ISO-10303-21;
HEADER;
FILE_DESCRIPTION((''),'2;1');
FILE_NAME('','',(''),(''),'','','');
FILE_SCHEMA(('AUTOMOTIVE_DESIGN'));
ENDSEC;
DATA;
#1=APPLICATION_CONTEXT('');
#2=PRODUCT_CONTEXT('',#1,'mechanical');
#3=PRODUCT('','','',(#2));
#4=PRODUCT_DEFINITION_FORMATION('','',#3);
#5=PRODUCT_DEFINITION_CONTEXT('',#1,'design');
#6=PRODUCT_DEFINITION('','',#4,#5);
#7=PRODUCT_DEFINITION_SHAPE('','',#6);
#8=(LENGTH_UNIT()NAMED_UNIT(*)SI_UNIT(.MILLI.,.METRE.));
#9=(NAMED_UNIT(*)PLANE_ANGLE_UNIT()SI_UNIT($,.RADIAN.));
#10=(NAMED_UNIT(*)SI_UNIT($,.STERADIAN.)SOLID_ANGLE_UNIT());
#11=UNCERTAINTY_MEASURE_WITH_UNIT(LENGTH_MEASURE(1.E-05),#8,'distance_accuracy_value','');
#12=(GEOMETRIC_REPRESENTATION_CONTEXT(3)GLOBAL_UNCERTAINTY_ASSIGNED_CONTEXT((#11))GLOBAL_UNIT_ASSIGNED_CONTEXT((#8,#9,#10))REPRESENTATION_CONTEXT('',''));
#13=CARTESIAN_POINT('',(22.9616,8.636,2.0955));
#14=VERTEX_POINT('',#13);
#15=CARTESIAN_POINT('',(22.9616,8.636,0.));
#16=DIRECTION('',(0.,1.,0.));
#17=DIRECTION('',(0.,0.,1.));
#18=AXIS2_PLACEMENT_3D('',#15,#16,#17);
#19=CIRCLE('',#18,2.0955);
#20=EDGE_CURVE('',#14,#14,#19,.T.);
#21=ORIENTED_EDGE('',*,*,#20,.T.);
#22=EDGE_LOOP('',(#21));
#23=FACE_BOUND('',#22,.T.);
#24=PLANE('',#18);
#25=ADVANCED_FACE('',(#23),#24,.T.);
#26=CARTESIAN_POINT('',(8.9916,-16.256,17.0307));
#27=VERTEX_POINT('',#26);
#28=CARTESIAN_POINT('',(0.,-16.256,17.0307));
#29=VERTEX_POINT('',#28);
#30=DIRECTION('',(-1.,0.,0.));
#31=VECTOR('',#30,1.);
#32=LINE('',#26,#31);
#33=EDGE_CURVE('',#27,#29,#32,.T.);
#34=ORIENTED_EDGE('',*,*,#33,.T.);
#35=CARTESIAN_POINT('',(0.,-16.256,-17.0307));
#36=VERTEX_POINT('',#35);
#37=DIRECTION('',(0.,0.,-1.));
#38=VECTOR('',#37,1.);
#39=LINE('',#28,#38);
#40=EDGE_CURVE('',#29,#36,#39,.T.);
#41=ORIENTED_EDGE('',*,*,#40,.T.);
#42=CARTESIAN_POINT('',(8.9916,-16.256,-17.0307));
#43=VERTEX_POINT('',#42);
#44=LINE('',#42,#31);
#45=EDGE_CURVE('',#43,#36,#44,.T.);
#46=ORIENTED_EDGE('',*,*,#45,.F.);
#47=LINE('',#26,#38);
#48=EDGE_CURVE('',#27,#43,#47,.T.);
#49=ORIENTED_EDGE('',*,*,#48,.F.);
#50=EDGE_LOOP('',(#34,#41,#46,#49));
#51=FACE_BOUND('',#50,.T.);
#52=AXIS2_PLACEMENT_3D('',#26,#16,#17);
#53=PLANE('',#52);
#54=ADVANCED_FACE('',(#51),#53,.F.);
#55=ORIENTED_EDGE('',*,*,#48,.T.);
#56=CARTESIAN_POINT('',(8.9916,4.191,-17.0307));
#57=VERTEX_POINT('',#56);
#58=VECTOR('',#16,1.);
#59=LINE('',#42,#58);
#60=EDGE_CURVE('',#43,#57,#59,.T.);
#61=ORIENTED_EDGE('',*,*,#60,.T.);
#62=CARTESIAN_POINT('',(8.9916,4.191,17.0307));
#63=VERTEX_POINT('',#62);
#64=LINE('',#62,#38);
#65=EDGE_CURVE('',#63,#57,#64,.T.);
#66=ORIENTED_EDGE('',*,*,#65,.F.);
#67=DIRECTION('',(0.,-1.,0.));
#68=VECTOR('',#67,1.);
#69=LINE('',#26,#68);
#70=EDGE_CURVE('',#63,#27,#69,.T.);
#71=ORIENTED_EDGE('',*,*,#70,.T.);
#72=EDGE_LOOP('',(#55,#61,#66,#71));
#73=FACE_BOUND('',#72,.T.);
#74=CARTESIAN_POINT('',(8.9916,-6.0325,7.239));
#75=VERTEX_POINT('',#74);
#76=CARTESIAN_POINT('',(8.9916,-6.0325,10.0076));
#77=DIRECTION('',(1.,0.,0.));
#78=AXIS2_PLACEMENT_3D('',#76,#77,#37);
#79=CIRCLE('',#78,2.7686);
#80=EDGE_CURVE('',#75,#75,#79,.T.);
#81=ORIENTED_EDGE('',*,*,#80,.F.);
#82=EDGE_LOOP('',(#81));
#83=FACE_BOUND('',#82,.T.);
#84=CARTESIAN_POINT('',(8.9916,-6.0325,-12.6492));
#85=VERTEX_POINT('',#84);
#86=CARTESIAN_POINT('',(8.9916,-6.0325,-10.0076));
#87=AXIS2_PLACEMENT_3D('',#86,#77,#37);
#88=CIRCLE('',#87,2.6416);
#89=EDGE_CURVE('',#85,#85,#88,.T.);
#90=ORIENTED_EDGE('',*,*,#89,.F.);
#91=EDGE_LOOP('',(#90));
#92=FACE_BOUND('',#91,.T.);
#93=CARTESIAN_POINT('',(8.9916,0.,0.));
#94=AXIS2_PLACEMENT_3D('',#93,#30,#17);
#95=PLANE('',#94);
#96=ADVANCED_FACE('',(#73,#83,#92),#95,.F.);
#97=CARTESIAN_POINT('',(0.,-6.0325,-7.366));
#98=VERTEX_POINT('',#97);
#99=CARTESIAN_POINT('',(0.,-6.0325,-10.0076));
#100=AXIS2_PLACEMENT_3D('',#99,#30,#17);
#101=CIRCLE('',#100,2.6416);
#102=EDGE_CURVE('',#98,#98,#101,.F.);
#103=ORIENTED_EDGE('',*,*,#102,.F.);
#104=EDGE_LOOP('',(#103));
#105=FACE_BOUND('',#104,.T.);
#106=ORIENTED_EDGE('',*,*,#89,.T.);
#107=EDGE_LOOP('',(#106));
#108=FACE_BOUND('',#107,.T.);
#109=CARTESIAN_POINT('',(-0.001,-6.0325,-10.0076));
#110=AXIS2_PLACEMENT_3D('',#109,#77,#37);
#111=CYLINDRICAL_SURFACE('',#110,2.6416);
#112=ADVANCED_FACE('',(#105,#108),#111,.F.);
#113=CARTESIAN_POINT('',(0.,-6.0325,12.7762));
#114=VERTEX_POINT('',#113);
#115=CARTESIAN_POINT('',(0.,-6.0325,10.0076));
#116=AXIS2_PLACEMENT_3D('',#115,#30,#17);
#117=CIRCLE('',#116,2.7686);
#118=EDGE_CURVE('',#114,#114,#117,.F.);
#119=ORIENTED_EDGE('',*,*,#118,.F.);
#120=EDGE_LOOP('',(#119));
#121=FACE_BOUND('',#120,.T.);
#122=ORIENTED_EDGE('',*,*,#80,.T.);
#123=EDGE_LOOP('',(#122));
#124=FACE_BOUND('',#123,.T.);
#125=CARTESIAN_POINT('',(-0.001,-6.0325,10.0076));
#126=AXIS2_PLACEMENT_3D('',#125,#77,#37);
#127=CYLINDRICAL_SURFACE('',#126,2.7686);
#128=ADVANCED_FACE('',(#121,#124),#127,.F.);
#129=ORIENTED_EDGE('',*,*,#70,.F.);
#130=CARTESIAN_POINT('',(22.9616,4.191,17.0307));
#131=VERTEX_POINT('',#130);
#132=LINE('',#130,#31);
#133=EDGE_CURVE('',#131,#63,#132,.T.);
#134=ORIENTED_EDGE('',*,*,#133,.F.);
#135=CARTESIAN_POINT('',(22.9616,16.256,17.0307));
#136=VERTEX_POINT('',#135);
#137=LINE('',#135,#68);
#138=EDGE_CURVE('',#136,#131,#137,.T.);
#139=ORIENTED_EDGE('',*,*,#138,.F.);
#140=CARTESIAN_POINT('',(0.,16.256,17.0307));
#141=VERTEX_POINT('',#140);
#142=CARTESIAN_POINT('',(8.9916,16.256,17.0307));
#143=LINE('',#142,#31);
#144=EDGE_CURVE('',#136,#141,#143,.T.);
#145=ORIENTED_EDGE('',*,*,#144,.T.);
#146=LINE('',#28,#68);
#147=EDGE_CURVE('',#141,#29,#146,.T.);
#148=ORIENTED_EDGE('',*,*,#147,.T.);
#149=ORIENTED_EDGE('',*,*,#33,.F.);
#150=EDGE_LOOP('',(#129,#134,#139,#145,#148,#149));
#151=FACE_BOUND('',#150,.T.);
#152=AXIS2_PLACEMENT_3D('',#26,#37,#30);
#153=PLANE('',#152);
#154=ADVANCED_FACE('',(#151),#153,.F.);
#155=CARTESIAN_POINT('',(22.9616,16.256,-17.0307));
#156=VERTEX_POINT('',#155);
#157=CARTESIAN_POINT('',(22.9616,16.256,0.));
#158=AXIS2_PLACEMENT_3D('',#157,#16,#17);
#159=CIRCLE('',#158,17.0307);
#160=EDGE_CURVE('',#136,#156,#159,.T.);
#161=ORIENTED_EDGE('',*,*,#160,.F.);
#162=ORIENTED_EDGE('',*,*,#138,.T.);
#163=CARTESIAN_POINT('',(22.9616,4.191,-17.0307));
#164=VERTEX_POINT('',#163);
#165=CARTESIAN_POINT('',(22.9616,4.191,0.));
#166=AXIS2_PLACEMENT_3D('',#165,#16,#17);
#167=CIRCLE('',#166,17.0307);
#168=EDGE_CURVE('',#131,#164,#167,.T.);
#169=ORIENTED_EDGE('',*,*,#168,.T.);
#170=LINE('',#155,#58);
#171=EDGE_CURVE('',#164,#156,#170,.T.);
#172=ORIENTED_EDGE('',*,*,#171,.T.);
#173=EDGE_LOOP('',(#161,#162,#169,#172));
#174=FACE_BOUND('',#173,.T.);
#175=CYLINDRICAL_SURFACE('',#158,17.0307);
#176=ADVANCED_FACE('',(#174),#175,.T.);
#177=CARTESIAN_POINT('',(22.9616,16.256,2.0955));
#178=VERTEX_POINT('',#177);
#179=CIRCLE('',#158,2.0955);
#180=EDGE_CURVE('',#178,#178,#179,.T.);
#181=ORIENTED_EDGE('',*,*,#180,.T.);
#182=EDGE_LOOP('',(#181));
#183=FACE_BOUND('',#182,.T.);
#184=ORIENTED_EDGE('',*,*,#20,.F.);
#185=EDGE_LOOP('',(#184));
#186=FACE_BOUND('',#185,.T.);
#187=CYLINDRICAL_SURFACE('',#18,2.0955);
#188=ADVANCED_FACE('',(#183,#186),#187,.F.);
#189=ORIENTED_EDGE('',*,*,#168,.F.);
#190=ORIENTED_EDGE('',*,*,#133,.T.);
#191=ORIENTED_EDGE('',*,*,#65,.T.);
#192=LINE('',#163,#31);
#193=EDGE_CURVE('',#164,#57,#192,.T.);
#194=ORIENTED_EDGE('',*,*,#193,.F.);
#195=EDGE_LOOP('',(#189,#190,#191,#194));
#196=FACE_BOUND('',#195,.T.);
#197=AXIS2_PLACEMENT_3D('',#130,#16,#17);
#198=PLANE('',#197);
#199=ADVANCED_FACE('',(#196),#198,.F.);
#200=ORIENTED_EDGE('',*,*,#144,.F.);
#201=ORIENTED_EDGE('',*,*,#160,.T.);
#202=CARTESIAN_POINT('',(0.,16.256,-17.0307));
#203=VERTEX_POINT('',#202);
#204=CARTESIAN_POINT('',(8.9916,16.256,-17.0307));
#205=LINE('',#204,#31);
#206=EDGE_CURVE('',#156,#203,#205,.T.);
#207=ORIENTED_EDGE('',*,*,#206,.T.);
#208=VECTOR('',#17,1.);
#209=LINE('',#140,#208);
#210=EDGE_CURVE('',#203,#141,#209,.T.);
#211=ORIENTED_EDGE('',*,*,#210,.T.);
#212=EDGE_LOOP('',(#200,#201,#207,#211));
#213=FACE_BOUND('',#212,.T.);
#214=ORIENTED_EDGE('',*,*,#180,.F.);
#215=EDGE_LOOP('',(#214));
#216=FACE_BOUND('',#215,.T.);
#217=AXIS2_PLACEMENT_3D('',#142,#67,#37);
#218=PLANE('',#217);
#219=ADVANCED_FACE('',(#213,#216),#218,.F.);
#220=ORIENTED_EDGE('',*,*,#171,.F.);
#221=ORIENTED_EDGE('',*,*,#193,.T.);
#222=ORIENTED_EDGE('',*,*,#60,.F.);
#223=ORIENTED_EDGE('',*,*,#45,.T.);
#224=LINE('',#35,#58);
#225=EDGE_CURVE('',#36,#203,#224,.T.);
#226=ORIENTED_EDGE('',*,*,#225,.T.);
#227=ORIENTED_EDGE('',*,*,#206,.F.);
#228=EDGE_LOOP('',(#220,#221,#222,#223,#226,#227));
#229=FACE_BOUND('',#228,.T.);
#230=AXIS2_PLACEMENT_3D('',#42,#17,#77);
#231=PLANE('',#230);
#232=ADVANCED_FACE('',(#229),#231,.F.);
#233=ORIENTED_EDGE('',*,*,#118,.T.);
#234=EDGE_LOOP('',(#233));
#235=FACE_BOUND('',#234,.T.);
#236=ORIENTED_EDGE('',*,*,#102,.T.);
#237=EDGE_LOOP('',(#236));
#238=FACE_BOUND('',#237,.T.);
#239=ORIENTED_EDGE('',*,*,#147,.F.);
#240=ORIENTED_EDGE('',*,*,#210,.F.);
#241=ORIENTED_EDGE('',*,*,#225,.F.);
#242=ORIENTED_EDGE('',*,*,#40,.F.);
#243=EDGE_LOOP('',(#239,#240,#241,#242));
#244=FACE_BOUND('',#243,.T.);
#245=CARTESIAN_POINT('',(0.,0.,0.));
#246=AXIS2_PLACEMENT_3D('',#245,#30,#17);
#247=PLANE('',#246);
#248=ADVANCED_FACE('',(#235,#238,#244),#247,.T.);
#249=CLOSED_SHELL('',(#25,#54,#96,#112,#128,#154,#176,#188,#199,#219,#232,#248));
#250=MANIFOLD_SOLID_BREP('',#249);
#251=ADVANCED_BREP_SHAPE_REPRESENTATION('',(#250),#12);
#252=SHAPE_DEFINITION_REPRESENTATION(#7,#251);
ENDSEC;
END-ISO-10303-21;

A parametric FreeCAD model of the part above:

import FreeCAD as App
import Part
import Sketcher

V = App.Vector
Q = App.Units.Quantity


def add_polygon(sketch, points):
    """Adds a closed chain of lines whose ends are joined by coincident constraints."""
    first, n = sketch.GeometryCount, len(points)
    for a, b in zip(points, points[1:] + points[:1]):
        sketch.addGeometry(Part.LineSegment(App.Vector(*a, 0), App.Vector(*b, 0)), False)
    for i in range(n):
        sketch.addConstraint(Sketcher.Constraint("Coincident", first + i, 2, first + (i + 1) % n, 1))

doc = App.newDocument("Part")
body = doc.addObject("PartDesign::Body", "Body")

sketch1 = doc.addObject("Sketcher::SketchObject", "Sketch")
body.addObject(sketch1)
sketch1.AttachmentSupport = (doc.YZ_Plane, [""])
sketch1.MapMode = "FlatFace"
add_polygon(sketch1, [(16.256, 17.0307), (-16.256, 17.0307), (-16.256, -17.0307), (16.256, -17.0307)])
sketch1.addConstraint(Sketcher.Constraint("Horizontal", 0))
sketch1.addConstraint(Sketcher.Constraint("Vertical", 1))
sketch1.addConstraint(Sketcher.Constraint("Horizontal", 2))
sketch1.addConstraint(Sketcher.Constraint("Vertical", 3))
sketch1.addConstraint(Sketcher.Constraint("Symmetric", 0, 2, 2, 2, -1, 1))
sketch1.addConstraint(Sketcher.Constraint("DistanceX", 0, 2, 0, 1, Q("1.28 in")))
sketch1.addConstraint(Sketcher.Constraint("DistanceY", 1, 2, 1, 1, Q("1.341 in")))
pad1 = doc.addObject("PartDesign::Pad", "Pad")
body.addObject(pad1)
pad1.Profile = sketch1
pad1.Length = Q("0.354 in")

sketch2 = doc.addObject("Sketcher::SketchObject", "Sketch001")
body.addObject(sketch2)
sketch2.AttachmentSupport = (doc.YZ_Plane, [""])
sketch2.MapMode = "FlatFace"
sketch2.AttachmentOffset = App.Placement(V(0, 0, 0.354 * 25.4), App.Rotation())
add_polygon(sketch2, [(16.256, 17.0307), (4.191, 17.0307), (4.191, -17.0307), (16.256, -17.0307)])
sketch2.addConstraint(Sketcher.Constraint("Horizontal", 0))
sketch2.addConstraint(Sketcher.Constraint("Vertical", 1))
sketch2.addConstraint(Sketcher.Constraint("Horizontal", 2))
sketch2.addConstraint(Sketcher.Constraint("Vertical", 3))
sketch2.addConstraint(Sketcher.Constraint("DistanceX", 0, 2, 0, 1, Q("0.475 in")))
sketch2.addConstraint(Sketcher.Constraint("DistanceY", 1, 2, 1, 1, Q("1.341 in")))
sketch2.addConstraint(Sketcher.Constraint("DistanceX", -1, 1, 2, 2, Q("0.64 in")))
sketch2.addConstraint(Sketcher.Constraint("DistanceY", -1, 1, 0, 2, Q("0.6705 in")))
pad2 = doc.addObject("PartDesign::Pad", "Pad001")
body.addObject(pad2)
pad2.Profile = sketch2
pad2.Length = Q("0.55 in")

sketch3 = doc.addObject("Sketcher::SketchObject", "Sketch002")
body.addObject(sketch3)
sketch3.AttachmentSupport = (doc.YZ_Plane, [""])
sketch3.MapMode = "FlatFace"
sketch3.AttachmentOffset = App.Placement(V(0, 0, 0.904 * 25.4), App.Rotation())
add_polygon(sketch3, [(16.256, 0), (4.191, 0), (4.191, -17.0307), (16.256, -17.0307)])
sketch3.addConstraint(Sketcher.Constraint("Horizontal", 0))
sketch3.addConstraint(Sketcher.Constraint("Vertical", 1))
sketch3.addConstraint(Sketcher.Constraint("Horizontal", 2))
sketch3.addConstraint(Sketcher.Constraint("Vertical", 3))
sketch3.addConstraint(Sketcher.Constraint("PointOnObject", 0, 2, -1))
sketch3.addConstraint(Sketcher.Constraint("DistanceX", 0, 2, 0, 1, Q("0.475 in")))
sketch3.addConstraint(Sketcher.Constraint("DistanceX", -1, 1, 2, 2, Q("0.64 in")))
sketch3.addConstraint(Sketcher.Constraint("DistanceY", 1, 2, 1, 1, Q("0.6705 in")))
revolution = doc.addObject("PartDesign::Revolution", "Revolution")
body.addObject(revolution)
revolution.Profile = sketch3
revolution.ReferenceAxis = (sketch3, ["H_Axis"])
revolution.Angle = 180
revolution.Reversed = True

sketch4 = doc.addObject("Sketcher::SketchObject", "Sketch003")
body.addObject(sketch4)
sketch4.AttachmentSupport = (doc.XZ_Plane, [""])
sketch4.MapMode = "FlatFace"
sketch4.AttachmentOffset = App.Placement(V(0, 0, -0.64 * 25.4), App.Rotation())
sketch4.addGeometry(Part.Circle(V(22.9616, 0, 0), V(0, 0, 1), 2.0955), False)
sketch4.addConstraint(Sketcher.Constraint("PointOnObject", 0, 3, -1))
sketch4.addConstraint(Sketcher.Constraint("Diameter", 0, Q("0.165 in")))
sketch4.addConstraint(Sketcher.Constraint("DistanceX", -1, 1, 0, 3, Q("0.904 in")))
pocket1 = doc.addObject("PartDesign::Pocket", "Pocket")
body.addObject(pocket1)
pocket1.Profile = sketch4
pocket1.Length = Q("0.3 in")
pocket1.Reversed = True

sketch5 = doc.addObject("Sketcher::SketchObject", "Sketch004")
body.addObject(sketch5)
sketch5.AttachmentSupport = (doc.YZ_Plane, [""])
sketch5.MapMode = "FlatFace"
sketch5.AttachmentOffset = App.Placement(V(0, 0, 0.354 * 25.4), App.Rotation())
sketch5.addGeometry(Part.Circle(V(-6.0325, 10.0076, 0), V(0, 0, 1), 2.7686), False)
sketch5.addConstraint(Sketcher.Constraint("Diameter", 0, Q("0.218 in")))
sketch5.addConstraint(Sketcher.Constraint("DistanceY", -1, 1, 0, 3, Q("0.394 in")))
sketch5.addConstraint(Sketcher.Constraint("DistanceX", 0, 3, -1, 1, Q("0.2375 in")))
pocket2 = doc.addObject("PartDesign::Pocket", "Pocket001")
body.addObject(pocket2)
pocket2.Profile = sketch5
pocket2.Type = "UpToFirst"

sketch6 = doc.addObject("Sketcher::SketchObject", "Sketch005")
body.addObject(sketch6)
sketch6.AttachmentSupport = (doc.YZ_Plane, [""])
sketch6.MapMode = "FlatFace"
sketch6.AttachmentOffset = App.Placement(V(0, 0, 0.354 * 25.4), App.Rotation())
sketch6.addGeometry(Part.Circle(V(-6.0325, -10.0076, 0), V(0, 0, 1), 2.6416), False)
sketch6.addConstraint(Sketcher.Constraint("Diameter", 0, Q("0.208 in")))
sketch6.addConstraint(Sketcher.Constraint("DistanceY", 0, 3, -1, 1, Q("0.394 in")))
sketch6.addConstraint(Sketcher.Constraint("DistanceX", 0, 3, -1, 1, Q("0.2375 in")))
pocket3 = doc.addObject("PartDesign::Pocket", "Pocket002")
body.addObject(pocket3)
pocket3.Profile = sketch6
pocket3.Type = "UpToFirst"

doc.recompute()
